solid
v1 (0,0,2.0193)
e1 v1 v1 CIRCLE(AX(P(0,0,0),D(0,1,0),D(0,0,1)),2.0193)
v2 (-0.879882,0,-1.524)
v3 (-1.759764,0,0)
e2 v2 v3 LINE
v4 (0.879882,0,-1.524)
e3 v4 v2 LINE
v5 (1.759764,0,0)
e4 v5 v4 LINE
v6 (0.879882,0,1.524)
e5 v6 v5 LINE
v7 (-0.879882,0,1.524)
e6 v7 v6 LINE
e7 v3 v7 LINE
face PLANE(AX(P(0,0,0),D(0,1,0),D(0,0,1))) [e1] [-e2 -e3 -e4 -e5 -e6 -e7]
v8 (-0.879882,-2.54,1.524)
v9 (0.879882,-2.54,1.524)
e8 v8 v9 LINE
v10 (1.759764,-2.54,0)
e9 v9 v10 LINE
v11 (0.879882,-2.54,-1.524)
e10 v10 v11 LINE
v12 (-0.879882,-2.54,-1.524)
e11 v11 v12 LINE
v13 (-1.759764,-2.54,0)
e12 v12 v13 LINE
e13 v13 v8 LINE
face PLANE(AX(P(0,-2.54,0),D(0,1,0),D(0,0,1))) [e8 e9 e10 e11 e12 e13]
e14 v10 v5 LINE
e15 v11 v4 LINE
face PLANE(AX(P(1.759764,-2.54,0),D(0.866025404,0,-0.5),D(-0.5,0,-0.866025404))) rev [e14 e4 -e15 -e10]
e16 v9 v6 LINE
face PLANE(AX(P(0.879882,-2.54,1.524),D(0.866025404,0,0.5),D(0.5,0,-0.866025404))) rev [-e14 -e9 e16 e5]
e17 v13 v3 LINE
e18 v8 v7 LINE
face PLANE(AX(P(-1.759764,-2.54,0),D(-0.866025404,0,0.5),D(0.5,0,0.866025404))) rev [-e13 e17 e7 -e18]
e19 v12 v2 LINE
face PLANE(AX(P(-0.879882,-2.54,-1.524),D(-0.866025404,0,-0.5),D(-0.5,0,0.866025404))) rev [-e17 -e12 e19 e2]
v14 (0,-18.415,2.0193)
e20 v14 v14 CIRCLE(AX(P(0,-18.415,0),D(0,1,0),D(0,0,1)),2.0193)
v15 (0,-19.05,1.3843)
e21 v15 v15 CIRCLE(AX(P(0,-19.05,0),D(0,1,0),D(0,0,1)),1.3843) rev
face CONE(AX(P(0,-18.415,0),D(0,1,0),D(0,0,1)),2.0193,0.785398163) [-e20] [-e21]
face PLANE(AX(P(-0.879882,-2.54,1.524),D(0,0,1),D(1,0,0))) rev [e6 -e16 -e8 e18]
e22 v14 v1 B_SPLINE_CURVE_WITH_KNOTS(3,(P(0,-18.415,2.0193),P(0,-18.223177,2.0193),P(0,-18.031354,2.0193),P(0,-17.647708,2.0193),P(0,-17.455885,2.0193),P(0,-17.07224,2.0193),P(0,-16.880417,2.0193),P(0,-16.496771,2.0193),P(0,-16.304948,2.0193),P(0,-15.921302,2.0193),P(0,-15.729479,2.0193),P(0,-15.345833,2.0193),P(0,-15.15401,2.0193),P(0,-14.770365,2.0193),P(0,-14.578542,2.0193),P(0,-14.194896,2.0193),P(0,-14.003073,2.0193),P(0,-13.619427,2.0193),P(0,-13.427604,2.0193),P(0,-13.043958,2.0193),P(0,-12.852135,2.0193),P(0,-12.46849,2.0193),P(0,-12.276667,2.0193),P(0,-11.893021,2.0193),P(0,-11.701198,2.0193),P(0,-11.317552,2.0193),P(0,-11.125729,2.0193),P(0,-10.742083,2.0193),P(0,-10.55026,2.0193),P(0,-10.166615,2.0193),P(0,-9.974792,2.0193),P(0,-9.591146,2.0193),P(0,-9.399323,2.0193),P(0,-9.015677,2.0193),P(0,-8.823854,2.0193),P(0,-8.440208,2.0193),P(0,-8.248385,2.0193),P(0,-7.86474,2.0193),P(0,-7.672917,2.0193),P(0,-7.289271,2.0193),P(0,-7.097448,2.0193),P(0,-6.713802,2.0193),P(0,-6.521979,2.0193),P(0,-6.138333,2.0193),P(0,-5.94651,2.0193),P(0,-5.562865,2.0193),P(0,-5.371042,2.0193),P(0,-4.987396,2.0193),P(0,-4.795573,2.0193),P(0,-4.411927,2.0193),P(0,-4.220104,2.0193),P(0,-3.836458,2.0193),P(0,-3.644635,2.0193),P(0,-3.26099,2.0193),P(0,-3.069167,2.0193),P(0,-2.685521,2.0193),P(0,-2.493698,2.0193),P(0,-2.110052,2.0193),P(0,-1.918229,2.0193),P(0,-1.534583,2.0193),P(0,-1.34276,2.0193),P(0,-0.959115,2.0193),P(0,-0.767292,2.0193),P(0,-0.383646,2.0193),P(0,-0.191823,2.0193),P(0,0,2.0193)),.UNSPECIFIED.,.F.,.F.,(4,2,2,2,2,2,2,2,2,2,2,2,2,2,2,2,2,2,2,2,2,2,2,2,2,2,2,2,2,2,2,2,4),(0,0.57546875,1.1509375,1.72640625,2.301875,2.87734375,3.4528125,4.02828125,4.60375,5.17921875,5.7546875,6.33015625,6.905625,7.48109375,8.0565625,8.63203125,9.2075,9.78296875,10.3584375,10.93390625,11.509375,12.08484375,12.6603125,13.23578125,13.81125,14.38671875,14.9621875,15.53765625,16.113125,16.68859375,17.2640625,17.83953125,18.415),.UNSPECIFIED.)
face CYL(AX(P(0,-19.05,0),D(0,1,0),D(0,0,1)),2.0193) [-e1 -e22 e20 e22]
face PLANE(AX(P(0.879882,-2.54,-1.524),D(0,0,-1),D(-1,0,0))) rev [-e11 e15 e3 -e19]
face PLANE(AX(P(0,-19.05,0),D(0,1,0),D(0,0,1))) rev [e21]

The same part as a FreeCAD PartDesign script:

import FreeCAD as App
import Part
import Sketcher

V = App.Vector
Q = App.Units.Quantity


def edges_at(feature, points):
    """Names of the edges that pass closest to the given points."""
    edges = feature.Shape.Edges
    near = lambda p: min(range(len(edges)), key=lambda i: edges[i].distToShape(Part.Vertex(*p))[0])
    return sorted({f"Edge{near(p) + 1}" for p in points})


def add_polygon(sketch, points):
    """Adds a closed chain of lines whose ends are joined by coincident constraints."""
    first, n = sketch.GeometryCount, len(points)
    for a, b in zip(points, points[1:] + points[:1]):
        sketch.addGeometry(Part.LineSegment(App.Vector(*a, 0), App.Vector(*b, 0)), False)
    for i in range(n):
        sketch.addConstraint(Sketcher.Constraint("Coincident", first + i, 2, first + (i + 1) % n, 1))

doc = App.newDocument("Part")
body = doc.addObject("PartDesign::Body", "Body")

# Sketch on XZ plane
sketch1 = body.newObject("Sketcher::SketchObject", "Sketch")
sketch1.AttachmentSupport = (doc.getObject("XZ_Plane"), [""])
sketch1.MapMode = "FlatFace"
sketch1.addGeometry(Part.Circle(V(0, 0, 0), V(0, 0, 1), 2.0193), False)
sketch1.addConstraint(Sketcher.Constraint("Coincident", 0, 3, -1, 1))
sketch1.addConstraint(Sketcher.Constraint("Diameter", 0, Q("0.159 in")))
pad1 = body.newObject("PartDesign::Pad", "Pad")
pad1.Profile = sketch1
pad1.Length = Q("0.75 in")
doc.recompute()

chamfer = body.newObject("PartDesign::Chamfer", "Chamfer")
chamfer.Base = (pad1, edges_at(pad1, [(0, -19.05, -2.019)]))
chamfer.Size = Q("0.025 in")

# Sketch on XZ plane
sketch2 = body.newObject("Sketcher::SketchObject", "Sketch001")
sketch2.AttachmentSupport = (doc.getObject("XZ_Plane"), [""])
sketch2.MapMode = "FlatFace"
add_polygon(sketch2, [(-1.759764, 0), (-0.879882, 1.524), (0.879882, 1.524), (1.759764, 0), (0.879882, -1.524), (-0.879882, -1.524)])  # lines 0-5
sketch2.addConstraint(Sketcher.Constraint("Horizontal", 1))
sketch2.addConstraint(Sketcher.Constraint("Horizontal", 4))
sketch2.addConstraint(Sketcher.Constraint("Symmetric", 0, 2, 3, 2, -1, 1))
sketch2.addConstraint(Sketcher.Constraint("Symmetric", 2, 2, 5, 2, -1, 1))
sketch2.addConstraint(Sketcher.Constraint("PointOnObject", 2, 2, -1))
sketch2.addConstraint(Sketcher.Constraint("Parallel", 2, 5))
sketch2.addConstraint(Sketcher.Constraint("Vertical", 1, 2, 3, 2))
sketch2.addConstraint(Sketcher.Constraint("Angle", 0, Q("60 deg")))
sketch2.addConstraint(Sketcher.Constraint("DistanceY", -1, 1, 0, 2, Q("0.06 in")))
sketch2.addConstraint(Sketcher.Constraint("DistanceX", 1, 1, 1, 2, Q("1.759764 mm")))
pocket1 = body.newObject("PartDesign::Pocket", "Pocket")
pocket1.Profile = sketch2
pocket1.Length = Q("0.1 in")
pocket1.Reversed = True

doc.recompute()
